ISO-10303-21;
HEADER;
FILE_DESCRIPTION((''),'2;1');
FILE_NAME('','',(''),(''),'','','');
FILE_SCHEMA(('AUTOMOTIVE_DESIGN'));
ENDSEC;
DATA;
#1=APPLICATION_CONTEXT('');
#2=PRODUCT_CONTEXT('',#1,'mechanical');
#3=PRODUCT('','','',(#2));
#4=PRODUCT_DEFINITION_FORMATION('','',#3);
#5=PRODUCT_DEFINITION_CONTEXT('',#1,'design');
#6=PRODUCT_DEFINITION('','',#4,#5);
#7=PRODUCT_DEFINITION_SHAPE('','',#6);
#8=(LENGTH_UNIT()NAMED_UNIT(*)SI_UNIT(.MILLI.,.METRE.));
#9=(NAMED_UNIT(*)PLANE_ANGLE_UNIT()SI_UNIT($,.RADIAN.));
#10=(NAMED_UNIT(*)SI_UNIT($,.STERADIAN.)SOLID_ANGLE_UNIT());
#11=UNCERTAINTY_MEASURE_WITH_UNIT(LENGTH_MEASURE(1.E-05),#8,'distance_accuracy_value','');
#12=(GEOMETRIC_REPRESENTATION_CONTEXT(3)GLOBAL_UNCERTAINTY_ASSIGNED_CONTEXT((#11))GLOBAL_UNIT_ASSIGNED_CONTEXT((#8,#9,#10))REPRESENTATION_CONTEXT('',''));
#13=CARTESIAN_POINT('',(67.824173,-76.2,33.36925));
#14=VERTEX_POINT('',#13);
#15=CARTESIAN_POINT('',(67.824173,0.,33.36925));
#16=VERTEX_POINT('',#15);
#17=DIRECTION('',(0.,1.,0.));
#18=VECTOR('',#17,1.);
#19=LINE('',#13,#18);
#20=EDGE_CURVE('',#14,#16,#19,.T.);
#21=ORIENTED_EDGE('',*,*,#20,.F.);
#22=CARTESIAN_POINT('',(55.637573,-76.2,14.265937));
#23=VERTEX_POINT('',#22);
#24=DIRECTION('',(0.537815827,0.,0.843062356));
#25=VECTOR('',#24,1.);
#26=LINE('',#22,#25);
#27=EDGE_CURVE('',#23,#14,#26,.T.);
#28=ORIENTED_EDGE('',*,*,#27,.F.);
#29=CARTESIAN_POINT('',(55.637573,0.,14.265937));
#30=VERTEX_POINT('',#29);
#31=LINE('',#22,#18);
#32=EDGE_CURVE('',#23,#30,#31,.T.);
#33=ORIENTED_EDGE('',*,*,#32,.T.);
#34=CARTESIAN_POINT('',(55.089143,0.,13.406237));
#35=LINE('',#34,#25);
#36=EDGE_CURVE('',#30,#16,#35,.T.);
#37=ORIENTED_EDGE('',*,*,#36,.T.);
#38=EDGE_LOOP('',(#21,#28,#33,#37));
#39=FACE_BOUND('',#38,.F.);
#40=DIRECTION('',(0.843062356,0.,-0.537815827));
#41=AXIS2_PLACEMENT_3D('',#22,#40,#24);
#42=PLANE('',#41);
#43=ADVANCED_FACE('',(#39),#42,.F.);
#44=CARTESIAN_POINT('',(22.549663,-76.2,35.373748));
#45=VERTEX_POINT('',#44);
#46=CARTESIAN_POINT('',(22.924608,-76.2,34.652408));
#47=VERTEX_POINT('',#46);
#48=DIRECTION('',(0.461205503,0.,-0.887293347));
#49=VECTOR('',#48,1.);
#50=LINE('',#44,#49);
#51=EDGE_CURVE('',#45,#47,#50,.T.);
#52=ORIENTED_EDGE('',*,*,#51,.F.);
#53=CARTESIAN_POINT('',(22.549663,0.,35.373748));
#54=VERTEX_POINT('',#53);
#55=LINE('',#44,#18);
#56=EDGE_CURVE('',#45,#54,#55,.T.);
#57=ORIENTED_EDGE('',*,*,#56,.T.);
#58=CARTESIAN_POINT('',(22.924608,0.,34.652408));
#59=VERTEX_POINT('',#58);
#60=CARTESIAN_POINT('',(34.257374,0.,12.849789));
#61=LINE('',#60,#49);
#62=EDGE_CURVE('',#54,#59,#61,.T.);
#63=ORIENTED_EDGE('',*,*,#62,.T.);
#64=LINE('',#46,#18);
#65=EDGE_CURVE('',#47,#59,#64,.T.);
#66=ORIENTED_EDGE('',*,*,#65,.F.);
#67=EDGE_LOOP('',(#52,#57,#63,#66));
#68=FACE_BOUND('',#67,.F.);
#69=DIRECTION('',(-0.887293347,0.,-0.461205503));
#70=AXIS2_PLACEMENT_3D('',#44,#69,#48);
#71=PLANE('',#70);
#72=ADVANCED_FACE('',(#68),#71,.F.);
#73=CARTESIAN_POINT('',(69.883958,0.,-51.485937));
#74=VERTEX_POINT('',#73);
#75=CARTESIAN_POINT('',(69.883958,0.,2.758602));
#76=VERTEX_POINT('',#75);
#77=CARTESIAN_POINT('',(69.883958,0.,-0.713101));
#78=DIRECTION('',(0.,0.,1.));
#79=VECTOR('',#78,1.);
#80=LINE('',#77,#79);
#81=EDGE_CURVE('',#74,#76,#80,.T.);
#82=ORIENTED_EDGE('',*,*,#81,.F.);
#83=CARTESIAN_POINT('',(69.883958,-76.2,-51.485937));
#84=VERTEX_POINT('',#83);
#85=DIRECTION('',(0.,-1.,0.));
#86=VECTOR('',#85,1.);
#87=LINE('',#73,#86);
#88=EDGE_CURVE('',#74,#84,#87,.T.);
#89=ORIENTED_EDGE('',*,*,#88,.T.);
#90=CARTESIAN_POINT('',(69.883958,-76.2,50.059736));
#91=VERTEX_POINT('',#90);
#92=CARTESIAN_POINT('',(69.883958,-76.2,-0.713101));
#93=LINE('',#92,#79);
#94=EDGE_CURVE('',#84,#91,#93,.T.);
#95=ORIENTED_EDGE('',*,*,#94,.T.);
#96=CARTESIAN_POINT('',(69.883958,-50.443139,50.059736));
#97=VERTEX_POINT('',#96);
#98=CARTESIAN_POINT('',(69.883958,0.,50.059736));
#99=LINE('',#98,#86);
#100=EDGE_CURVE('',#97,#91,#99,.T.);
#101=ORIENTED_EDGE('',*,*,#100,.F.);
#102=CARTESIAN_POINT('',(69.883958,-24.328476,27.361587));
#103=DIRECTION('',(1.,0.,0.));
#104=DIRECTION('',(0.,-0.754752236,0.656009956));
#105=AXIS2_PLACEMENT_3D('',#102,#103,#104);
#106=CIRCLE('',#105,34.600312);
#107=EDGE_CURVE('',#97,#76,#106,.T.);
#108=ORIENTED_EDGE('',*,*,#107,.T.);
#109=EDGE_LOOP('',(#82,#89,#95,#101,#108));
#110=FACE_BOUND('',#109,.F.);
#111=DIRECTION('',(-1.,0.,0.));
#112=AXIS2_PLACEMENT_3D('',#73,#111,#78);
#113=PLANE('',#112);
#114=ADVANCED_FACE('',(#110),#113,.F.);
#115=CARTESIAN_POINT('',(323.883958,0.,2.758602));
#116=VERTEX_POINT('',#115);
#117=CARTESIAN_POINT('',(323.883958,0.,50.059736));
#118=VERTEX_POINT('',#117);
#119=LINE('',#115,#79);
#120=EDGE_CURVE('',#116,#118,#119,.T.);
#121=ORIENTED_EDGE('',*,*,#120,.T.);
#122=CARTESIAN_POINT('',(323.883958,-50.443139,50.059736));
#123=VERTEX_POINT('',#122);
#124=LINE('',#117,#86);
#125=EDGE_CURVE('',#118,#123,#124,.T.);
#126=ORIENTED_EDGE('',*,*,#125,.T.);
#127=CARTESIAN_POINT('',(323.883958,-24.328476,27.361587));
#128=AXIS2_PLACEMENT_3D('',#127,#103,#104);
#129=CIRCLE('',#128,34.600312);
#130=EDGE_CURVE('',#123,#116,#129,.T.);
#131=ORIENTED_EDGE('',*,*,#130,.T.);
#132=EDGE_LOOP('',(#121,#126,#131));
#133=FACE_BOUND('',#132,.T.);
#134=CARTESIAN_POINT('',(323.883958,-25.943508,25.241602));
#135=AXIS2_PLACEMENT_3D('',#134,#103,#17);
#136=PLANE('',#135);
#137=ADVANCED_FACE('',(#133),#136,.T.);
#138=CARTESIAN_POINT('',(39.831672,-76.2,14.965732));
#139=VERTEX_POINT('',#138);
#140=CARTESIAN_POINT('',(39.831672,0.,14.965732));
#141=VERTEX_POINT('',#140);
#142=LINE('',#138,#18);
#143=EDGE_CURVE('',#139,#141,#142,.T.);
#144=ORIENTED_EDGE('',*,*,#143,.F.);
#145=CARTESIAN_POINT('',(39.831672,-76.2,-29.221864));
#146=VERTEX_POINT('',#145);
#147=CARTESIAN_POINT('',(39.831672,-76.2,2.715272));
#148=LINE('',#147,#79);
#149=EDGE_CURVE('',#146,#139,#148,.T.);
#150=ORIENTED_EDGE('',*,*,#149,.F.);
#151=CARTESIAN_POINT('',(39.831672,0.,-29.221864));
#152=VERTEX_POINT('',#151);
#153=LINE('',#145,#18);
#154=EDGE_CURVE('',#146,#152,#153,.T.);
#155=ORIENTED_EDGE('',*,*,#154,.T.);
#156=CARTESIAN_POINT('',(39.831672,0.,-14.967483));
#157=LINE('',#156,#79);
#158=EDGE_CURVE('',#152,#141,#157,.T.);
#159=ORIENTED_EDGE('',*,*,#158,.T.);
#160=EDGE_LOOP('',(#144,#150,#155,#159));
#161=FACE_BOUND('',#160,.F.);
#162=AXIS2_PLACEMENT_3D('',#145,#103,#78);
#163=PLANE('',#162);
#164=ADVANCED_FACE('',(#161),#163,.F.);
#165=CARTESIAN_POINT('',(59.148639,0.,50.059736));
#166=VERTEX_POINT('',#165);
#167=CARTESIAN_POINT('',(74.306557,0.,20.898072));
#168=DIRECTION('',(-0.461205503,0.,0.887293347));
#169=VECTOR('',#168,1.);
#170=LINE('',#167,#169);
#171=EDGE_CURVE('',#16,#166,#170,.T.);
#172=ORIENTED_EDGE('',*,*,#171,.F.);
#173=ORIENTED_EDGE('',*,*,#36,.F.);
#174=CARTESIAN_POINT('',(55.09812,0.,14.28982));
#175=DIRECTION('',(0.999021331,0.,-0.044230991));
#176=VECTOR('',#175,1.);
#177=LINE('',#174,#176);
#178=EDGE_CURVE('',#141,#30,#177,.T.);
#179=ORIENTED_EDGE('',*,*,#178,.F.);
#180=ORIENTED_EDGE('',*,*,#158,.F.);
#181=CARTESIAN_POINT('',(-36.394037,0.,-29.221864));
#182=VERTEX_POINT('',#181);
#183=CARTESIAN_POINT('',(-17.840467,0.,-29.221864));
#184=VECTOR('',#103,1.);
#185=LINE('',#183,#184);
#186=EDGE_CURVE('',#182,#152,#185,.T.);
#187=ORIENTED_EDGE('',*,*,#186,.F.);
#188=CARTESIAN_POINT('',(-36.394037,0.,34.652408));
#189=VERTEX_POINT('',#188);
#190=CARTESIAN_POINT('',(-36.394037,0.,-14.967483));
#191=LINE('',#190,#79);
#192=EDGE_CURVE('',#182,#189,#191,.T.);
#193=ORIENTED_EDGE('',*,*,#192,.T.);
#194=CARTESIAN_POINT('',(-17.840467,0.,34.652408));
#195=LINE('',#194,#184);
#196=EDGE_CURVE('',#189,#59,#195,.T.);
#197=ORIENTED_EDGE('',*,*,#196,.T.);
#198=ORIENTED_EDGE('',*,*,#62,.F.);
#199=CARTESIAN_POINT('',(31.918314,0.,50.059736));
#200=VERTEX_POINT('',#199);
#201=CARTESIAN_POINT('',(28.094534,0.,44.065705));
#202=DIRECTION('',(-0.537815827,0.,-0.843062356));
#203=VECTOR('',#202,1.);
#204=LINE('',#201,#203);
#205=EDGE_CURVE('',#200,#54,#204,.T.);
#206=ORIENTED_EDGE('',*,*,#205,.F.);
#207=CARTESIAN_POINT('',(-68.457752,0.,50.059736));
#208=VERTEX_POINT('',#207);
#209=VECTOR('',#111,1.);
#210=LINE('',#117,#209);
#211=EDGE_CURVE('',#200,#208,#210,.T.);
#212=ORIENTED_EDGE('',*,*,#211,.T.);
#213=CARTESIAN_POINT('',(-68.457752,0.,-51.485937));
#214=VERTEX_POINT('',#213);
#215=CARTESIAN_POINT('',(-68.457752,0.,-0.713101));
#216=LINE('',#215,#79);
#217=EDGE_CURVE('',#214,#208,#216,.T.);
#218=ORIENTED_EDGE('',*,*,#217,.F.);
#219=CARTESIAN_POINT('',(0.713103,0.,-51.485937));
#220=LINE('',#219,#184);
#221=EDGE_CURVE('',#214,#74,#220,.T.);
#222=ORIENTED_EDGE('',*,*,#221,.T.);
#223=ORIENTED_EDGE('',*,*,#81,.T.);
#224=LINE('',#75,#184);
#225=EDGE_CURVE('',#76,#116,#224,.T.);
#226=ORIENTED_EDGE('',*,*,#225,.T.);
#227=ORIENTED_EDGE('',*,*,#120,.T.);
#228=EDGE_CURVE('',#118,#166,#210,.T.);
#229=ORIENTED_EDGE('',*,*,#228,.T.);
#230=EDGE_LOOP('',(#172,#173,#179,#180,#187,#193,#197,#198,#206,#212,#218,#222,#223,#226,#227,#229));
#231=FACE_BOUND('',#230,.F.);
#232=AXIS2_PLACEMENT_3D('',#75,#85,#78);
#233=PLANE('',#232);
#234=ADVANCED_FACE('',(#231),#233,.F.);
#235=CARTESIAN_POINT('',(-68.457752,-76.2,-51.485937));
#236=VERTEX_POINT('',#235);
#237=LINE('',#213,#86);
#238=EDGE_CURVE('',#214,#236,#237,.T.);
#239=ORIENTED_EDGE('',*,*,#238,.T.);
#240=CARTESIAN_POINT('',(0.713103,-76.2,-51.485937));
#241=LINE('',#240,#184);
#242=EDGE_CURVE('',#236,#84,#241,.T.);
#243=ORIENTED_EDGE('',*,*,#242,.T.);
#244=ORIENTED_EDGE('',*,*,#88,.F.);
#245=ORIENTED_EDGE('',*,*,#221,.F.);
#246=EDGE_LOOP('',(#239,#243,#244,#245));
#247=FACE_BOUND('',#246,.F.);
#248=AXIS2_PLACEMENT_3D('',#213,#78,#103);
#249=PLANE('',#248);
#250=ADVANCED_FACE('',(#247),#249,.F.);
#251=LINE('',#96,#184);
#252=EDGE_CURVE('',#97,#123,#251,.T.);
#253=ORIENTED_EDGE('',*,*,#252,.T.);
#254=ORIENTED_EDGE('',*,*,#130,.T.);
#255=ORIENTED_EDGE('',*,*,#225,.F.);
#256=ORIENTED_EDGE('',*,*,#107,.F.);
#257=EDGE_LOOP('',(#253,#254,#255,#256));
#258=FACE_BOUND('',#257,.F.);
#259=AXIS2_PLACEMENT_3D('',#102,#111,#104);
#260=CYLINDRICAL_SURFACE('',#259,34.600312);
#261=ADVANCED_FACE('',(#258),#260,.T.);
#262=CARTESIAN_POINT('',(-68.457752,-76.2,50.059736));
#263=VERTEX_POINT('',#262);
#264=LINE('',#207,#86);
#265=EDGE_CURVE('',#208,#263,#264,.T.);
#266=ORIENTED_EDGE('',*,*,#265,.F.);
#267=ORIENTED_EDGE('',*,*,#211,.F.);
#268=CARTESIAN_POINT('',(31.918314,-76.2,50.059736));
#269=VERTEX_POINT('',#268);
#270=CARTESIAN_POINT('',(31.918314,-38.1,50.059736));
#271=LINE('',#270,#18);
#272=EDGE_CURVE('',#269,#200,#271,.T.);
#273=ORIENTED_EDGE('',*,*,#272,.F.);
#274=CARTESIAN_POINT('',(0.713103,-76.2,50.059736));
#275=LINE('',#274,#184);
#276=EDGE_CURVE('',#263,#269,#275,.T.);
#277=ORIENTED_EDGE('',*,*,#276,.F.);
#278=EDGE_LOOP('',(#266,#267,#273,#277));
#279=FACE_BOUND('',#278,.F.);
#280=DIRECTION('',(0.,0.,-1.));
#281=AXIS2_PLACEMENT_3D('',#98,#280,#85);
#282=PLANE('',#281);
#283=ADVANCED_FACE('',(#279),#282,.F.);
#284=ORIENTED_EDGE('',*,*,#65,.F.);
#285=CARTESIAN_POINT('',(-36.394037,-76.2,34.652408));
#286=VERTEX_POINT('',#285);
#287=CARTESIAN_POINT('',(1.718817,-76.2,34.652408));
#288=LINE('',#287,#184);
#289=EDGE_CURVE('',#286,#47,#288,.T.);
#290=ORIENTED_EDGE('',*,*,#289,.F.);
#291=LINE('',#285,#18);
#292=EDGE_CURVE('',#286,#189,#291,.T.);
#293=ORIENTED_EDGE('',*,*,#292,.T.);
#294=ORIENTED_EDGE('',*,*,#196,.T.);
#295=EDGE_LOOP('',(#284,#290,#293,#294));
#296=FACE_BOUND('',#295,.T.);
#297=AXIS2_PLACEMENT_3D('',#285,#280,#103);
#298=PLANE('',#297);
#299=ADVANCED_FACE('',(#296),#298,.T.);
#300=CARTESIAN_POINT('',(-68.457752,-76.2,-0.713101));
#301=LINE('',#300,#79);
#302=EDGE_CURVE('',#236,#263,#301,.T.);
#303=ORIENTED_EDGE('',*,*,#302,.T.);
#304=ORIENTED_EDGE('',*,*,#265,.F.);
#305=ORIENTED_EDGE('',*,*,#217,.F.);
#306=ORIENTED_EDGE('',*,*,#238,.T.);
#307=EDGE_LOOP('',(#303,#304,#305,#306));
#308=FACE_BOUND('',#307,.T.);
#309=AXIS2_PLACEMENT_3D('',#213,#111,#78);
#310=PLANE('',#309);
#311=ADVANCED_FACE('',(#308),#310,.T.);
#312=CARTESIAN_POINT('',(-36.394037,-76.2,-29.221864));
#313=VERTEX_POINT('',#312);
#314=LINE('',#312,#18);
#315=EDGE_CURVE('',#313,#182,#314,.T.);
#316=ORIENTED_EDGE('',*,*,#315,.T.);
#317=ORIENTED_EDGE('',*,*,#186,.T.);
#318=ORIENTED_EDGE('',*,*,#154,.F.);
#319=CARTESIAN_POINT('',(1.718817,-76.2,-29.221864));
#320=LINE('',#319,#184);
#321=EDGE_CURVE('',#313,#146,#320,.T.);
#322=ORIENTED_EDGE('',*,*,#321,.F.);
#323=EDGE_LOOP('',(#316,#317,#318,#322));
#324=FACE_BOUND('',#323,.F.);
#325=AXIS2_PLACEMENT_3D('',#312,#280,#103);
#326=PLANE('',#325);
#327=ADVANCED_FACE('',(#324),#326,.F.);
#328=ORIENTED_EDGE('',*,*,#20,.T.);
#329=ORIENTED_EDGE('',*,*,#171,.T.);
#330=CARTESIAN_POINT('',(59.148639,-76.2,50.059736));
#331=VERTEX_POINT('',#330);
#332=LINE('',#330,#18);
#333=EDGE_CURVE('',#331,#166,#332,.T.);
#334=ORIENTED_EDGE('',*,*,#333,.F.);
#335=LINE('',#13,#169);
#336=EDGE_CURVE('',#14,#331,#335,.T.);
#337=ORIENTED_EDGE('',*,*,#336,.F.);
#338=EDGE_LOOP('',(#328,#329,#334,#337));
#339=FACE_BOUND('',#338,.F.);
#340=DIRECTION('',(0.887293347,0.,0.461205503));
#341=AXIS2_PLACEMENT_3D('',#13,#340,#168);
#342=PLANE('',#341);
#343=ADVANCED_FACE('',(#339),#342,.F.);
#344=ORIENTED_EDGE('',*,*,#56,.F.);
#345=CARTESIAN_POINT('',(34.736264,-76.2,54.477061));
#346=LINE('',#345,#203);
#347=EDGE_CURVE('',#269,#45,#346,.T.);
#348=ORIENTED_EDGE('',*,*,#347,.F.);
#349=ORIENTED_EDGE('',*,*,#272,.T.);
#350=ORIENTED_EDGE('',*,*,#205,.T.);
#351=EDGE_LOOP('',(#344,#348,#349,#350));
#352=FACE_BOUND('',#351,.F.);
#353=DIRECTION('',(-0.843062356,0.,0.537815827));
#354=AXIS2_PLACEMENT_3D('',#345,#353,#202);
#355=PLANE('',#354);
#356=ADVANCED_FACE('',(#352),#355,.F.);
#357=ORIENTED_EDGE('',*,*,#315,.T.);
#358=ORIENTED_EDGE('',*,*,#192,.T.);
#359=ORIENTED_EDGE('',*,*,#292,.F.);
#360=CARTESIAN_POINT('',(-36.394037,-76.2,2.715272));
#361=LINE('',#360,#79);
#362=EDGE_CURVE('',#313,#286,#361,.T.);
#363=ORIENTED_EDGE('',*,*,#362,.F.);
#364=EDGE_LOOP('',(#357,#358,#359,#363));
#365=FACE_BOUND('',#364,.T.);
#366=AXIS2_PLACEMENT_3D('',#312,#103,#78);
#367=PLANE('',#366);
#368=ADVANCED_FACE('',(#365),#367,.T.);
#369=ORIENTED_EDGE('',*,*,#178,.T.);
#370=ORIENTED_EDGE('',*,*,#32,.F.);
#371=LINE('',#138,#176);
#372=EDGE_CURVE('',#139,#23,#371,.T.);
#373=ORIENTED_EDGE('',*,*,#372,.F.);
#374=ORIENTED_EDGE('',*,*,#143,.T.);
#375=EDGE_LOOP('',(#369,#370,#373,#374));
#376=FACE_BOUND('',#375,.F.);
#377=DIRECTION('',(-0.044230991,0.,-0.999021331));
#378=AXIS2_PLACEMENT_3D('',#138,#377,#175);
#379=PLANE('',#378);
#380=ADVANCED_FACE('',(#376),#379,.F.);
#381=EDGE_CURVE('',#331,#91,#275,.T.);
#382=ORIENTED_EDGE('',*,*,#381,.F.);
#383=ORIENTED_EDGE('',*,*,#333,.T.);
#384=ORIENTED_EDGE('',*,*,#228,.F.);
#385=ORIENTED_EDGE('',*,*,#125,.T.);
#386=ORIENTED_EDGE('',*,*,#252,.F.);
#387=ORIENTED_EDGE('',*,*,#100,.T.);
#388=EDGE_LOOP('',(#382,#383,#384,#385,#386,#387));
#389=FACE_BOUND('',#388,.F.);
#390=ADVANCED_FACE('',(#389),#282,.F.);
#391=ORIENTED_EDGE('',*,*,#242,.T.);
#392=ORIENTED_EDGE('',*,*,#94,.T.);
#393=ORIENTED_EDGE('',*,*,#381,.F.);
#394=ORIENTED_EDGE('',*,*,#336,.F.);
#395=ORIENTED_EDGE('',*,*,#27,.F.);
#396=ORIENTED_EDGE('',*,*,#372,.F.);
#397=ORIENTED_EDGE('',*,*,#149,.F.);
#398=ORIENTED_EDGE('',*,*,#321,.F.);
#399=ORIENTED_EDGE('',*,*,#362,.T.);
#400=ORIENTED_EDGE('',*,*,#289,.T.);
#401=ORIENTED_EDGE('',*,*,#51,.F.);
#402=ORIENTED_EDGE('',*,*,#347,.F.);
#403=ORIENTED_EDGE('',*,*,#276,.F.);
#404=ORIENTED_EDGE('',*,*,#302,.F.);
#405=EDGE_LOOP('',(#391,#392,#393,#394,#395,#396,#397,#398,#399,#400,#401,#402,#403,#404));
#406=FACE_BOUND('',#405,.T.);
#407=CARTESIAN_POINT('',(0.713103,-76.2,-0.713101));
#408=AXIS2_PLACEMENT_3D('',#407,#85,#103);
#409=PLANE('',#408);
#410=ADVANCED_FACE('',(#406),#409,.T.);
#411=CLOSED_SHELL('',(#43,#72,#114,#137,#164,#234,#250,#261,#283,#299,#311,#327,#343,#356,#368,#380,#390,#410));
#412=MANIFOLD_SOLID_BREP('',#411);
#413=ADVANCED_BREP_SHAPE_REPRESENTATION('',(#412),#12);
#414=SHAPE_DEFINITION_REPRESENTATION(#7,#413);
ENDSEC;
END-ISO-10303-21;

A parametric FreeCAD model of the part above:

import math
import FreeCAD as App
import Part
import Sketcher
Q = App.Units.Quantity


def add_polygon(sketch, points):
    """Adds a closed chain of lines whose ends are joined by coincident constraints."""
    first, n = sketch.GeometryCount, len(points)
    for a, b in zip(points, points[1:] + points[:1]):
        sketch.addGeometry(Part.LineSegment(App.Vector(*a, 0), App.Vector(*b, 0)), False)
    for i in range(n):
        sketch.addConstraint(Sketcher.Constraint("Coincident", first + i, 2, first + (i + 1) % n, 1))

doc = App.newDocument("Part")
body = doc.addObject("PartDesign::Body", "Body")

# Sketch on XZ plane
sketch1 = body.newObject("Sketcher::SketchObject", "Sketch")
sketch1.AttachmentSupport = (doc.getObject("XZ_Plane"), [""])
sketch1.MapMode = "FlatFace"
add_polygon(sketch1, [(-68, 50), (-68, -51), (70, -51), (70, 50)])  # lines 0-3
sketch1.addConstraint([
    Sketcher.Constraint("Vertical", 0),
    Sketcher.Constraint("Horizontal", 1),
    Sketcher.Constraint("Vertical", 2),
    Sketcher.Constraint("Horizontal", 3),
    Sketcher.Constraint("DistanceX", 1, 1, 1, 2, 138.34171),
    Sketcher.Constraint("DistanceY", 0, 2, 0, 1, 101.545673),
    Sketcher.Constraint("DistanceX", 0, 2, -1, 1, 68.457752),
    Sketcher.Constraint("DistanceY", 0, 2, -1, 1, 51.485937),
])
pad1 = body.newObject("PartDesign::Pad", "Pad")
pad1.Profile = sketch1
pad1.Length = Q("3 in")

# Sketch on XZ plane
sketch2 = body.newObject("Sketcher::SketchObject", "Sketch001")
sketch2.AttachmentSupport = (doc.getObject("XZ_Plane"), [""])
sketch2.MapMode = "FlatFace"
sketch2.AttachmentOffset = App.Placement(App.Vector(0, 0, 3 * 25.4), App.Rotation())
add_polygon(sketch2, [(-36, 35), (-36, -29), (40, -29), (40, 35)])  # lines 0-3
sketch2.addConstraint([
    Sketcher.Constraint("Vertical", 0),
    Sketcher.Constraint("Horizontal", 1),
    Sketcher.Constraint("Vertical", 2),
    Sketcher.Constraint("Horizontal", 3),
    Sketcher.Constraint("DistanceX", 1, 1, 1, 2, 76.225709),
    Sketcher.Constraint("DistanceY", 0, 2, 0, 1, 63.874273),
    Sketcher.Constraint("DistanceX", -1, 1, 1, 2, 39.831672),
    Sketcher.Constraint("DistanceY", -1, 1, 2, 2, 34.652408),
])
pocket1 = body.newObject("PartDesign::Pocket", "Pocket")
pocket1.Profile = sketch2
pocket1.Length = Q("4 in")

# Sketch on YZ plane
sketch3 = body.newObject("Sketcher::SketchObject", "Sketch002")
sketch3.AttachmentSupport = (doc.getObject("YZ_Plane"), [""])
sketch3.MapMode = "FlatFace"
sketch3.AttachmentOffset = App.Placement(App.Vector(0, 0, 69.883958), App.Rotation())
sketch3.addGeometry([
    Part.LineSegment(App.Vector(0, 50, 0), App.Vector(-50, 50, 0)),
    Part.ArcOfCircle(Part.Circle(App.Vector(-24, 27, 0), App.Vector(0, 0, 1), 35), math.radians(139), math.radians(315)),
    Part.LineSegment(App.Vector(0, 3, 0), App.Vector(0, 50, 0)),
], False)
sketch3.addConstraint([
    Sketcher.Constraint("Coincident", 0, 2, 1, 1),
    Sketcher.Constraint("Coincident", 1, 2, 2, 1),
    Sketcher.Constraint("Coincident", 2, 2, 0, 1),
    Sketcher.Constraint("Horizontal", 0),
    Sketcher.Constraint("Vertical", 2),
    Sketcher.Constraint("PointOnObject", 1, 2, -2),
    Sketcher.Constraint("Radius", 1, 34.600312),
    Sketcher.Constraint("DistanceX", 0, 2, 0, 1, 50.443139),
    Sketcher.Constraint("DistanceY", 2, 1, 2, 2, 47.301134),
    Sketcher.Constraint("DistanceY", -1, 1, 1, 3, 27.361587),
])
pad2 = body.newObject("PartDesign::Pad", "Pad001")
pad2.Profile = sketch3
pad2.Length = Q("10 in")

# Sketch on XZ plane
sketch4 = body.newObject("Sketcher::SketchObject", "Sketch003")
sketch4.AttachmentSupport = (doc.getObject("XZ_Plane"), [""])
sketch4.MapMode = "FlatFace"
sketch4.AttachmentOffset = App.Placement(App.Vector(0, 0, 3 * 25.4), App.Rotation())
add_polygon(sketch4, [(59.1, 50.1), (57.4, 53.5), (34.7, 54.5), (22.5, 35.4), (22.9, 34.7), (39.8, 34.7), (39.8, 15), (55.6, 14.3), (67.8, 33.4)])  # lines 0-8
sketch4.addConstraint([
    Sketcher.Constraint("Horizontal", 4),
    Sketcher.Constraint("Vertical", 5),
    Sketcher.Constraint("Parallel", 0, 3),
    Sketcher.Constraint("Parallel", 1, 6),
    Sketcher.Constraint("Parallel", 2, 7),
    Sketcher.Constraint("Parallel", 3, 8),
    Sketcher.Constraint("Equal", 1, 2),
    Sketcher.Constraint("Equal", 2, 7),
    Sketcher.Constraint("DistanceX", -1, 1, 0, 2, Q("2.2588 in")),
    Sketcher.Constraint("DistanceX", 2, 2, 1, 2, 12.186601),
    Sketcher.Constraint("DistanceX", 5, 2, 6, 2, 15.805901),
    Sketcher.Constraint("DistanceY", 6, 2, 8, 2, 35.793799),
    Sketcher.Constraint("Distance", 0, 3.84887),
    Sketcher.Constraint("Distance", 1, 22.659431),
    Sketcher.Constraint("Distance", 8, 18.810561),
    Sketcher.Constraint("DistanceX", 4, 1, 4, 2, 16.907064),
    Sketcher.Constraint("DistanceY", 5, 2, 5, 1, 19.686676),
    Sketcher.Constraint("DistanceY", -1, 1, 1, 2, 54.477061),
])
pocket2 = body.newObject("PartDesign::Pocket", "Pocket001")
pocket2.Profile = sketch4
pocket2.Length = Q("4 in")

doc.recompute()
